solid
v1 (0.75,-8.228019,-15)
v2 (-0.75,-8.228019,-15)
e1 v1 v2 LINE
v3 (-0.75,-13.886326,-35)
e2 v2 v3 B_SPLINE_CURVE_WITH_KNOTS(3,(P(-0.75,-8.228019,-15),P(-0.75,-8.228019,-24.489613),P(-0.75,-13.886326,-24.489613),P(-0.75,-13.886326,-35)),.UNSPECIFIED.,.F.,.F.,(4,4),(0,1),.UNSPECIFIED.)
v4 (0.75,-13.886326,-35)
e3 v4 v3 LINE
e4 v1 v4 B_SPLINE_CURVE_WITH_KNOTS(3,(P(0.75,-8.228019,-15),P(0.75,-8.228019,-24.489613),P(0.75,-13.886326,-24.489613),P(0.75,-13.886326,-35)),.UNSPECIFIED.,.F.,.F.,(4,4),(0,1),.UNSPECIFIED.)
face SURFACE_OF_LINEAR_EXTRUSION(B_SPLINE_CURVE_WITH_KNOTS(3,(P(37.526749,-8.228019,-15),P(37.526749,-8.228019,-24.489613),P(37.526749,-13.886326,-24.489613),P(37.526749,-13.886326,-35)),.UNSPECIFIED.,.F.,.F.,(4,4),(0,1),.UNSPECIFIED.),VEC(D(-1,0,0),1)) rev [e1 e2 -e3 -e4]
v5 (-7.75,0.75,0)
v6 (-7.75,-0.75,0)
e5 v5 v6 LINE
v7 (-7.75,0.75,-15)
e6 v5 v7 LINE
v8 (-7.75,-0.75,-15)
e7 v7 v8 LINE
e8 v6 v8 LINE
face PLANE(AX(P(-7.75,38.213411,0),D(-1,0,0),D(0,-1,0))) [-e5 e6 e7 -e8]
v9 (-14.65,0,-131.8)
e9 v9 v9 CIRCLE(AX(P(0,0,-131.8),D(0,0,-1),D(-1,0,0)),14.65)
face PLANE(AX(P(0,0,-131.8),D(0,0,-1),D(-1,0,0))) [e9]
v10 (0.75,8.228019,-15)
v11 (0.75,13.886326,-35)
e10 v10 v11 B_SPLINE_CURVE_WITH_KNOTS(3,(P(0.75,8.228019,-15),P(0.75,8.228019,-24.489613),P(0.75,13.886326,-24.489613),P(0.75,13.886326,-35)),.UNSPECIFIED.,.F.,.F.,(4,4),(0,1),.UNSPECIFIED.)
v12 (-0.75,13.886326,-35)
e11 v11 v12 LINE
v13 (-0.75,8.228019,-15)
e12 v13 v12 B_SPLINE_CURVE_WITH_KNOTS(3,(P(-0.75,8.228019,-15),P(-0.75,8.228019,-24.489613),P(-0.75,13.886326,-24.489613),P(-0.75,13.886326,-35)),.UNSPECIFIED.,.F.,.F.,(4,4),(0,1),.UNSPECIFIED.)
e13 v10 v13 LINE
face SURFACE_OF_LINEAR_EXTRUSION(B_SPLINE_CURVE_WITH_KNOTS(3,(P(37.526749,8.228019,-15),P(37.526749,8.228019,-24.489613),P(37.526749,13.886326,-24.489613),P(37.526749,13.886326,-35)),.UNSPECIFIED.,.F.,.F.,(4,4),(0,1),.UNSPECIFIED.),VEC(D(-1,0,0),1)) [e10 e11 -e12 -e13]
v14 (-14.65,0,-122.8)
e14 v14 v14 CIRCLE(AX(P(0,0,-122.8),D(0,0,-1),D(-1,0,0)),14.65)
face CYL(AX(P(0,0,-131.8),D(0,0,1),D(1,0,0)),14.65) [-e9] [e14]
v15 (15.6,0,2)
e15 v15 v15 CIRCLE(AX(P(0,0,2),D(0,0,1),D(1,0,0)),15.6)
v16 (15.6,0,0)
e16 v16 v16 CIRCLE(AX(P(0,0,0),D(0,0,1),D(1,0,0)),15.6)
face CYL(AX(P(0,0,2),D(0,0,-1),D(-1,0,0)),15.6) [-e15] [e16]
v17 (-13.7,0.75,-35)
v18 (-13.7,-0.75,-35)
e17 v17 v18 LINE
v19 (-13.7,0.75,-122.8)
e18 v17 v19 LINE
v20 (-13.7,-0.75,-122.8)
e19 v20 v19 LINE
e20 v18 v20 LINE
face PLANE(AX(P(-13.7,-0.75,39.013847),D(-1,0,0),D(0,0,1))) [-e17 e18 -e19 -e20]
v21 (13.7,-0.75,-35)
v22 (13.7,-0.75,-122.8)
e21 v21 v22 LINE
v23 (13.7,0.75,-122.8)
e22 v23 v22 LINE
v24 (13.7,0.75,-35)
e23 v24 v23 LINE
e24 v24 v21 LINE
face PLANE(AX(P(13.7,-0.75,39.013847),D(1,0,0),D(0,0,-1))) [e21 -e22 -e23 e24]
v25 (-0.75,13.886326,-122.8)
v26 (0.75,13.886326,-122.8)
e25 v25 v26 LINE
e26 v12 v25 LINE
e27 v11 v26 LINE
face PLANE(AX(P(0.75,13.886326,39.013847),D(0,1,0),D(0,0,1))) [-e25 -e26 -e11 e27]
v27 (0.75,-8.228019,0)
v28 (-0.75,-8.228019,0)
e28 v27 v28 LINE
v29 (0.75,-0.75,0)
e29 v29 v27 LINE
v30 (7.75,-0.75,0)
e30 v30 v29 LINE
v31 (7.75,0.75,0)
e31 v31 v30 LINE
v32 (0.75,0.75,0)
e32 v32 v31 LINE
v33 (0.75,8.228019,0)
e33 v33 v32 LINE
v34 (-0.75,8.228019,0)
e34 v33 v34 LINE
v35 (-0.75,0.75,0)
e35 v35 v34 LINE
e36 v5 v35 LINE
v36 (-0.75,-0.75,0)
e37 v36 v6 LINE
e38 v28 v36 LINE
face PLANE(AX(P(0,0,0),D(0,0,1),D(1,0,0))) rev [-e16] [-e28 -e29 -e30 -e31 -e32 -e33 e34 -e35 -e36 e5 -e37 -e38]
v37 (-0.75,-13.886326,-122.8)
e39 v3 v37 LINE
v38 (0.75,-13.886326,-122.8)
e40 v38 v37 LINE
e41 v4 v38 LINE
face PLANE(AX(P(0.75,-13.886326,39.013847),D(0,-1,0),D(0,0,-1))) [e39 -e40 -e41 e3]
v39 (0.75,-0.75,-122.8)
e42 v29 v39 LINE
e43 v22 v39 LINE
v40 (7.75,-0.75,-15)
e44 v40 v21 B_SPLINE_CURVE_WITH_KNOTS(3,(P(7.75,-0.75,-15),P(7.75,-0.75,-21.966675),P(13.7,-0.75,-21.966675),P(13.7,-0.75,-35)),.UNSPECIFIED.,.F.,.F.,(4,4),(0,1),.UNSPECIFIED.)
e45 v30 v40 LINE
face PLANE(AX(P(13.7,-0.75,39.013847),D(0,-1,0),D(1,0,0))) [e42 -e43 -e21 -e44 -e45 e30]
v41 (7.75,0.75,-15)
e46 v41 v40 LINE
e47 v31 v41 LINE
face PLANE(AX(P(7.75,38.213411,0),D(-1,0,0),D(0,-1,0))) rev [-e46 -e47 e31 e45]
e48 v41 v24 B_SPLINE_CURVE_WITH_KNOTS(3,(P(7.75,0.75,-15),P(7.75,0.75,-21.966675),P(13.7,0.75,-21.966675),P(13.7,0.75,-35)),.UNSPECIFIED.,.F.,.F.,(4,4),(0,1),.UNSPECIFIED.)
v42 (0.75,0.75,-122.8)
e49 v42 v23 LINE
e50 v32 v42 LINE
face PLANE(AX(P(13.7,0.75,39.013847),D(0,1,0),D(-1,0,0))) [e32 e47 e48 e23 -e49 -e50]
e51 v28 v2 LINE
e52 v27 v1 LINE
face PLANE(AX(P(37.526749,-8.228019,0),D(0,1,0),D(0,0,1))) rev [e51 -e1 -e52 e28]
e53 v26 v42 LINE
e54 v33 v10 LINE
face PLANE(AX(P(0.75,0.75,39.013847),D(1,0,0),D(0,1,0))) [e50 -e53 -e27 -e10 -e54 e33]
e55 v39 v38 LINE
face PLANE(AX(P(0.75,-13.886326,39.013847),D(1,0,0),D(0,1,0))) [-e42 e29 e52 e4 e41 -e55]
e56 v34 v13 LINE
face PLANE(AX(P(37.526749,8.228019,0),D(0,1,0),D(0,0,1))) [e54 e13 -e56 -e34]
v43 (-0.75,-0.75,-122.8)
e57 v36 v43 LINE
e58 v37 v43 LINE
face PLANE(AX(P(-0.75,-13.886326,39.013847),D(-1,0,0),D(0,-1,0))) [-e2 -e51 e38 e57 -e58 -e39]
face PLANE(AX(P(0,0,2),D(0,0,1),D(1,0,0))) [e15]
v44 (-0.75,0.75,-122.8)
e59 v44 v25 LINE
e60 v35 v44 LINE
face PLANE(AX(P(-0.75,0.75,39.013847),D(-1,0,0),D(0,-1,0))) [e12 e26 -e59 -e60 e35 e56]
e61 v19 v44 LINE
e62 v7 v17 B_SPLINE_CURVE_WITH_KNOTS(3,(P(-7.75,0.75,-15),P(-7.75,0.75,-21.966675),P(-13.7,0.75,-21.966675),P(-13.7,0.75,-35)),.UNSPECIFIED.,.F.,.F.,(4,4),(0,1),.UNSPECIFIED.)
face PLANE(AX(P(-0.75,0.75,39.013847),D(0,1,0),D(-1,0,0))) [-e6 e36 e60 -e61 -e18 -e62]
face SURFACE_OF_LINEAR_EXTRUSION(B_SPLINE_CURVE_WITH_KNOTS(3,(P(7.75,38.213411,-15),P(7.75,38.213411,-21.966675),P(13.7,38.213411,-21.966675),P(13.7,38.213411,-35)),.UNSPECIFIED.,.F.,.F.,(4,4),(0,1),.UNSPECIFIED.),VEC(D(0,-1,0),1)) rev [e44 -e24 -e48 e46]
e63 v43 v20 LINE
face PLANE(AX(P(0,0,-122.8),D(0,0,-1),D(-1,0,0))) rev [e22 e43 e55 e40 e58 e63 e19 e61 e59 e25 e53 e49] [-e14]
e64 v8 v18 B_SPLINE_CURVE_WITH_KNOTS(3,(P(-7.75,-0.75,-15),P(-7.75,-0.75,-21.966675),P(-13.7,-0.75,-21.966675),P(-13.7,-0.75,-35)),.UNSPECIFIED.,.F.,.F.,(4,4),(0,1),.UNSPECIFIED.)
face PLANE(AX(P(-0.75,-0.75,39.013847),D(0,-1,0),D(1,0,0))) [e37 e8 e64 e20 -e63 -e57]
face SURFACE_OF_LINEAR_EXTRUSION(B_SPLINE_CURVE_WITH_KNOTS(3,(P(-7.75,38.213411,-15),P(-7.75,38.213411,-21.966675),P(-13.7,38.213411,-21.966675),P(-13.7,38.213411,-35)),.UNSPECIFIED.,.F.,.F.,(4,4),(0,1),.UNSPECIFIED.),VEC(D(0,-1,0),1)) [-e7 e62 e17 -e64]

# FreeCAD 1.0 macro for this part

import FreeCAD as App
import Part
import Sketcher


def add_polygon(sketch, points):
    """Adds a closed chain of lines whose ends are joined by coincident constraints."""
    first, n = sketch.GeometryCount, len(points)
    for a, b in zip(points, points[1:] + points[:1]):
        sketch.addGeometry(Part.LineSegment(App.Vector(*a, 0), App.Vector(*b, 0)), False)
    for i in range(n):
        sketch.addConstraint(Sketcher.Constraint("Coincident", first + i, 2, first + (i + 1) % n, 1))

doc = App.newDocument("Part")
params = doc.addObject("Spreadsheet::Sheet", "Params")
for row, (alias, value) in enumerate([
    ("sketch1_diameter", "31.2 mm"),
    ("pad1_length", "2 mm"),
    ("sketch2_width", "1.5 mm"),
    ("sketch2_width2", "12.95 mm"),
    ("pad2_length", "122.8 mm"),
    ("sketch3_diameter", "29.3 mm"),
    ("pad3_length", "9 mm"),
    ("pocket1_length", "1.5 mm"),
    ("pocket2_length", "1.5 mm"),
], start=1):
    params.set(f"A{row}", alias)
    params.set(f"B{row}", "=" + value)
    params.setAlias(f"B{row}", alias)

body = doc.addObject("PartDesign::Body", "Body")

sketch1 = body.newObject("Sketcher::SketchObject", "Sketch")
sketch1.AttachmentSupport = (doc.getObject("XY_Plane"), [""])
sketch1.MapMode = "FlatFace"
sketch1.addGeometry(Part.Circle(App.Vector(0, 0, 0), App.Vector(0, 0, 1), 15.6), False)
sketch1.addConstraint([
    Sketcher.Constraint("Coincident", 0, 3, -1, 1),
    Sketcher.Constraint("Diameter", 0, 31.2),
])
sketch1.setExpression("Constraints[1]", "Params.sketch1_diameter")
pad1 = body.newObject("PartDesign::Pad", "Pad")
pad1.Profile = sketch1
pad1.setExpression("Length", "Params.pad1_length")

sketch2 = body.newObject("Sketcher::SketchObject", "Sketch001")
sketch2.AttachmentSupport = (doc.getObject("XY_Plane"), [""])
sketch2.MapMode = "FlatFace"
sketch2.AttachmentOffset = App.Placement(App.Vector(0, 0, -122.8), App.Rotation())
add_polygon(sketch2, [(-13.7, 0.75), (-0.75, 0.75), (-0.75, 13.886326), (0.75, 13.886326), (0.75, 0.75), (13.7, 0.75), (13.7, -0.75), (0.75, -0.75), (0.75, -13.886326), (-0.75, -13.886326), (-0.75, -0.75), (-13.7, -0.75)])
sketch2.addConstraint([
    Sketcher.Constraint("Horizontal", 0),
    Sketcher.Constraint("Vertical", 1),
    Sketcher.Constraint("Horizontal", 2),
    Sketcher.Constraint("Vertical", 3),
    Sketcher.Constraint("Horizontal", 4),
    Sketcher.Constraint("Vertical", 5),
    Sketcher.Constraint("Horizontal", 6),
    Sketcher.Constraint("Vertical", 7),
    Sketcher.Constraint("Horizontal", 8),
    Sketcher.Constraint("Vertical", 9),
    Sketcher.Constraint("Horizontal", 10),
    Sketcher.Constraint("Vertical", 11),
    Sketcher.Constraint("Symmetric", 0, 2, 6, 2, -1, 1),
    Sketcher.Constraint("Symmetric", 2, 2, 8, 2, -1, 1),
    Sketcher.Constraint("Symmetric", 4, 2, 10, 2, -1, 1),
    Sketcher.Constraint("Symmetric", 0, 2, 3, 2, -2),
    Sketcher.Constraint("Equal", 8, 5),
    Sketcher.Constraint("DistanceX", 2, 1, 2, 2, 1.5),
    Sketcher.Constraint("DistanceX", 0, 1, 0, 2, 12.95),
    Sketcher.Constraint("DistanceY", 1, 1, 1, 2, 13.136326),
])
sketch2.setExpression("Constraints[29]", "Params.sketch2_width")
sketch2.setExpression("Constraints[30]", "Params.sketch2_width2")
pad2 = body.newObject("PartDesign::Pad", "Pad001")
pad2.Profile = sketch2
pad2.setExpression("Length", "Params.pad2_length")

sketch3 = body.newObject("Sketcher::SketchObject", "Sketch002")
sketch3.AttachmentSupport = (doc.getObject("XY_Plane"), [""])
sketch3.MapMode = "FlatFace"
sketch3.AttachmentOffset = App.Placement(App.Vector(0, 0, -122.8), App.Rotation())
sketch3.addGeometry(Part.Circle(App.Vector(0, 0, 0), App.Vector(0, 0, 1), 14.65), False)
sketch3.addConstraint([
    Sketcher.Constraint("Coincident", 0, 3, -1, 1),
    Sketcher.Constraint("Diameter", 0, 29.3),
])
sketch3.setExpression("Constraints[1]", "Params.sketch3_diameter")
pad3 = body.newObject("PartDesign::Pad", "Pad002")
pad3.Profile = sketch3
pad3.setExpression("Length", "Params.pad3_length")
pad3.Reversed = True

sketch4 = body.newObject("Sketcher::SketchObject", "Sketch003")
sketch4.AttachmentSupport = (doc.getObject("YZ_Plane"), [""])
sketch4.MapMode = "FlatFace"
sketch4.AttachmentOffset = App.Placement(App.Vector(0, 0, -0.75), App.Rotation())
sketch4.addGeometry([
    Part.LineSegment(App.Vector(8.228019, -15, 0), App.Vector(8.228019, 0, 0)),
    Part.LineSegment(App.Vector(8.228019, 0, 0), App.Vector(19.520904, 0, 0)),
    Part.LineSegment(App.Vector(19.520904, 0, 0), App.Vector(19.520904, -35, 0)),
    Part.LineSegment(App.Vector(19.520904, -35, 0), App.Vector(13.886326, -35, 0)),
    Part.BSplineCurve([App.Vector(8.228019, -15, 0), App.Vector(8.228019, -24.489613, 0), App.Vector(13.886326, -24.489613, 0), App.Vector(13.886326, -35, 0)], [4, 4], [0, 1], False, 3, [1, 1, 1, 1], False),
    Part.LineSegment(App.Vector(-19.520904, 0, 0), App.Vector(-8.228019, 0, 0)),
    Part.LineSegment(App.Vector(-8.228019, 0, 0), App.Vector(-8.228019, -15, 0)),
    Part.BSplineCurve([App.Vector(-8.228019, -15, 0), App.Vector(-8.228019, -24.489613, 0), App.Vector(-13.886326, -24.489613, 0), App.Vector(-13.886326, -35, 0)], [4, 4], [0, 1], False, 3, [1, 1, 1, 1], False),
    Part.LineSegment(App.Vector(-13.886326, -35, 0), App.Vector(-19.520904, -35, 0)),
    Part.LineSegment(App.Vector(-19.520904, -35, 0), App.Vector(-19.520904, 0, 0)),
], False)
sketch4.addConstraint([
    Sketcher.Constraint("Block", 4),
    Sketcher.Constraint("Block", 7),
    Sketcher.Constraint("Coincident", 0, 2, 1, 1),
    Sketcher.Constraint("Coincident", 1, 2, 2, 1),
    Sketcher.Constraint("Coincident", 2, 2, 3, 1),
    Sketcher.Constraint("Coincident", 3, 2, 4, 2),
    Sketcher.Constraint("Coincident", 4, 1, 0, 1),
    Sketcher.Constraint("Coincident", 5, 2, 6, 1),
    Sketcher.Constraint("Coincident", 6, 2, 7, 1),
    Sketcher.Constraint("Coincident", 7, 2, 8, 1),
    Sketcher.Constraint("Coincident", 8, 2, 9, 1),
    Sketcher.Constraint("Coincident", 9, 2, 5, 1),
    Sketcher.Constraint("Vertical", 0),
    Sketcher.Constraint("Horizontal", 1),
    Sketcher.Constraint("Vertical", 2),
    Sketcher.Constraint("Horizontal", 3),
    Sketcher.Constraint("Horizontal", 5),
    Sketcher.Constraint("Vertical", 6),
    Sketcher.Constraint("Horizontal", 8),
    Sketcher.Constraint("Vertical", 9),
    Sketcher.Constraint("Symmetric", 1, 2, 9, 2, -1, 1),
    Sketcher.Constraint("PointOnObject", 0, 2, -1),
    Sketcher.Constraint("DistanceX", 1, 1, 1, 2, 11.292885),
])
pocket1 = body.newObject("PartDesign::Pocket", "Pocket")
pocket1.Profile = sketch4
pocket1.setExpression("Length", "Params.pocket1_length")
pocket1.Reversed = True

sketch5 = body.newObject("Sketcher::SketchObject", "Sketch004")
sketch5.AttachmentSupport = (doc.getObject("XZ_Plane"), [""])
sketch5.MapMode = "FlatFace"
sketch5.AttachmentOffset = App.Placement(App.Vector(0, 0, 0.75), App.Rotation())
sketch5.addGeometry([
    Part.LineSegment(App.Vector(7.75, 0, 0), App.Vector(7.75, -15, 0)),
    Part.BSplineCurve([App.Vector(7.75, -15, 0), App.Vector(7.75, -21.966675, 0), App.Vector(13.7, -21.966675, 0), App.Vector(13.7, -35, 0)], [4, 4], [0, 1], False, 3, [1, 1, 1, 1], False),
    Part.LineSegment(App.Vector(13.7, -35, 0), App.Vector(21.110658, -35, 0)),
    Part.LineSegment(App.Vector(21.110658, -35, 0), App.Vector(21.110658, 0, 0)),
    Part.LineSegment(App.Vector(21.110658, 0, 0), App.Vector(7.75, 0, 0)),
    Part.LineSegment(App.Vector(-7.75, 0, 0), App.Vector(-21.110658, 0, 0)),
    Part.LineSegment(App.Vector(-21.110658, 0, 0), App.Vector(-21.110658, -35, 0)),
    Part.LineSegment(App.Vector(-21.110658, -35, 0), App.Vector(-13.7, -35, 0)),
    Part.BSplineCurve([App.Vector(-7.75, -15, 0), App.Vector(-7.75, -21.966675, 0), App.Vector(-13.7, -21.966675, 0), App.Vector(-13.7, -35, 0)], [4, 4], [0, 1], False, 3, [1, 1, 1, 1], False),
    Part.LineSegment(App.Vector(-7.75, -15, 0), App.Vector(-7.75, 0, 0)),
], False)
sketch5.addConstraint([
    Sketcher.Constraint("Block", 1),
    Sketcher.Constraint("Block", 8),
    Sketcher.Constraint("Coincident", 0, 2, 1, 1),
    Sketcher.Constraint("Coincident", 1, 2, 2, 1),
    Sketcher.Constraint("Coincident", 2, 2, 3, 1),
    Sketcher.Constraint("Coincident", 3, 2, 4, 1),
    Sketcher.Constraint("Coincident", 4, 2, 0, 1),
    Sketcher.Constraint("Coincident", 5, 2, 6, 1),
    Sketcher.Constraint("Coincident", 6, 2, 7, 1),
    Sketcher.Constraint("Coincident", 7, 2, 8, 2),
    Sketcher.Constraint("Coincident", 8, 1, 9, 1),
    Sketcher.Constraint("Coincident", 9, 2, 5, 1),
    Sketcher.Constraint("Vertical", 0),
    Sketcher.Constraint("Horizontal", 2),
    Sketcher.Constraint("Vertical", 3),
    Sketcher.Constraint("Horizontal", 4),
    Sketcher.Constraint("Horizontal", 5),
    Sketcher.Constraint("Vertical", 6),
    Sketcher.Constraint("Horizontal", 7),
    Sketcher.Constraint("Vertical", 9),
    Sketcher.Constraint("Symmetric", 3, 2, 5, 2, -1, 1),
    Sketcher.Constraint("PointOnObject", 3, 2, -1),
    Sketcher.Constraint("DistanceX", 2, 1, 2, 2, 7.410658),
])
pocket2 = body.newObject("PartDesign::Pocket", "Pocket001")
pocket2.Profile = sketch5
pocket2.setExpression("Length", "Params.pocket2_length")

doc.recompute()
